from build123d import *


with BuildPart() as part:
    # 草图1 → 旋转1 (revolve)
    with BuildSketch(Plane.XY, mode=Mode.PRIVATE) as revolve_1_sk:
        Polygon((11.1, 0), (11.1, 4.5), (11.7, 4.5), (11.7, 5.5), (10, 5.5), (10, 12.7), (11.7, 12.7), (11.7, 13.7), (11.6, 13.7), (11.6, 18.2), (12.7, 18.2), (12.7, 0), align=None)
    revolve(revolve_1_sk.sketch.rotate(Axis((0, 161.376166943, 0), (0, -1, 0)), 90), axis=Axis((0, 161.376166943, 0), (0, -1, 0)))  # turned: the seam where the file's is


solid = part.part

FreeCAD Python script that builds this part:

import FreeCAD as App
import Part
import Sketcher
from FreeCAD import Vector
Q = App.Units.Quantity


def add_polygon(sketch, points):
    """Adds a closed chain of lines whose ends are joined by coincident constraints."""
    first, n = sketch.GeometryCount, len(points)
    for a, b in zip(points, points[1:] + points[:1]):
        sketch.addGeometry(Part.LineSegment(App.Vector(*a, 0), App.Vector(*b, 0)), False)
    for i in range(n):
        sketch.addConstraint(Sketcher.Constraint("Coincident", first + i, 2, first + (i + 1) % n, 1))

doc = App.newDocument("Part")
params = doc.addObject("Spreadsheet::Sheet", "Params")
for row, (alias, value) in enumerate([
    ("sketch1_height", "1 mm"),
    ("sketch1_width", "1.6 mm"),
    ("sketch1_width2", "1.1 mm"),
    ("sketch1_width3", "0.1 mm"),
    ("sketch1_width4", "1.7 mm"),
    ("revolution_angle", "360 deg"),
], start=1):
    params.set(f"A{row}", alias)
    params.set(f"B{row}", "=" + value)
    params.setAlias(f"B{row}", alias)

body = doc.addObject("PartDesign::Body", "Body")

# Sketch on XY plane
sketch1 = doc.addObject("Sketcher::SketchObject", "Sketch")
body.addObject(sketch1)
sketch1.AttachmentSupport = (doc.XY_Plane, [""])
sketch1.MapMode = "FlatFace"
add_polygon(sketch1, [(11.1, 4.5), (11.1, 0), (12.7, 0), (12.7, 18.2), (11.6, 18.2), (11.6, 13.7), (11.7, 13.7), (11.7, 12.7), (10, 12.7), (10, 5.5), (11.7, 5.5), (11.7, 4.5)])  # lines 0-11
sketch1.addConstraint(Sketcher.Constraint("Vertical", 0))
sketch1.addConstraint(Sketcher.Constraint("Horizontal", 1))
sketch1.addConstraint(Sketcher.Constraint("Vertical", 2))
sketch1.addConstraint(Sketcher.Constraint("Horizontal", 3))
sketch1.addConstraint(Sketcher.Constraint("Vertical", 4))
sketch1.addConstraint(Sketcher.Constraint("Horizontal", 5))
sketch1.addConstraint(Sketcher.Constraint("Vertical", 6))
sketch1.addConstraint(Sketcher.Constraint("Horizontal", 7))
sketch1.addConstraint(Sketcher.Constraint("Vertical", 8))
sketch1.addConstraint(Sketcher.Constraint("Horizontal", 9))
sketch1.addConstraint(Sketcher.Constraint("Vertical", 10))
sketch1.addConstraint(Sketcher.Constraint("Horizontal", 11))
sketch1.addConstraint(Sketcher.Constraint("PointOnObject", 0, 2, -1))
sketch1.addConstraint(Sketcher.Constraint("Vertical", 6, 2, 9, 2))
sketch1.addConstraint(Sketcher.Constraint("Equal", 0, 4))
sketch1.addConstraint(Sketcher.Constraint("Equal", 6, 10))
sketch1.addConstraint(Sketcher.Constraint("DistanceY", 6, 2, 6, 1, Q("1 mm")))
sketch1.addConstraint(Sketcher.Constraint("DistanceX", 1, 1, 1, 2, Q("1.6 mm")))
sketch1.addConstraint(Sketcher.Constraint("DistanceX", 3, 2, 3, 1, Q("1.1 mm")))
sketch1.addConstraint(Sketcher.Constraint("DistanceX", 5, 1, 5, 2, Q("0.1 mm")))
sketch1.addConstraint(Sketcher.Constraint("DistanceX", 7, 2, 7, 1, Q("1.7 mm")))
sketch1.addConstraint(Sketcher.Constraint("DistanceY", 0, 2, 0, 1, Q("4.5 mm")))
sketch1.addConstraint(Sketcher.Constraint("DistanceY", 2, 1, 2, 2, Q("18.2 mm")))
sketch1.addConstraint(Sketcher.Constraint("DistanceX", -1, 1, 7, 2, Q("10 mm")))
sketch1.setExpression("Constraints[28]", "Params.sketch1_height")
sketch1.setExpression("Constraints[29]", "Params.sketch1_width")
sketch1.setExpression("Constraints[30]", "Params.sketch1_width2")
sketch1.setExpression("Constraints[31]", "Params.sketch1_width3")
sketch1.setExpression("Constraints[32]", "Params.sketch1_width4")
revolution = doc.addObject("PartDesign::Revolution", "Revolution")
body.addObject(revolution)
revolution.Profile = sketch1
revolution.ReferenceAxis = (sketch1, ["V_Axis"])
revolution.setExpression("Angle", "Params.revolution_angle")

doc.recompute()
